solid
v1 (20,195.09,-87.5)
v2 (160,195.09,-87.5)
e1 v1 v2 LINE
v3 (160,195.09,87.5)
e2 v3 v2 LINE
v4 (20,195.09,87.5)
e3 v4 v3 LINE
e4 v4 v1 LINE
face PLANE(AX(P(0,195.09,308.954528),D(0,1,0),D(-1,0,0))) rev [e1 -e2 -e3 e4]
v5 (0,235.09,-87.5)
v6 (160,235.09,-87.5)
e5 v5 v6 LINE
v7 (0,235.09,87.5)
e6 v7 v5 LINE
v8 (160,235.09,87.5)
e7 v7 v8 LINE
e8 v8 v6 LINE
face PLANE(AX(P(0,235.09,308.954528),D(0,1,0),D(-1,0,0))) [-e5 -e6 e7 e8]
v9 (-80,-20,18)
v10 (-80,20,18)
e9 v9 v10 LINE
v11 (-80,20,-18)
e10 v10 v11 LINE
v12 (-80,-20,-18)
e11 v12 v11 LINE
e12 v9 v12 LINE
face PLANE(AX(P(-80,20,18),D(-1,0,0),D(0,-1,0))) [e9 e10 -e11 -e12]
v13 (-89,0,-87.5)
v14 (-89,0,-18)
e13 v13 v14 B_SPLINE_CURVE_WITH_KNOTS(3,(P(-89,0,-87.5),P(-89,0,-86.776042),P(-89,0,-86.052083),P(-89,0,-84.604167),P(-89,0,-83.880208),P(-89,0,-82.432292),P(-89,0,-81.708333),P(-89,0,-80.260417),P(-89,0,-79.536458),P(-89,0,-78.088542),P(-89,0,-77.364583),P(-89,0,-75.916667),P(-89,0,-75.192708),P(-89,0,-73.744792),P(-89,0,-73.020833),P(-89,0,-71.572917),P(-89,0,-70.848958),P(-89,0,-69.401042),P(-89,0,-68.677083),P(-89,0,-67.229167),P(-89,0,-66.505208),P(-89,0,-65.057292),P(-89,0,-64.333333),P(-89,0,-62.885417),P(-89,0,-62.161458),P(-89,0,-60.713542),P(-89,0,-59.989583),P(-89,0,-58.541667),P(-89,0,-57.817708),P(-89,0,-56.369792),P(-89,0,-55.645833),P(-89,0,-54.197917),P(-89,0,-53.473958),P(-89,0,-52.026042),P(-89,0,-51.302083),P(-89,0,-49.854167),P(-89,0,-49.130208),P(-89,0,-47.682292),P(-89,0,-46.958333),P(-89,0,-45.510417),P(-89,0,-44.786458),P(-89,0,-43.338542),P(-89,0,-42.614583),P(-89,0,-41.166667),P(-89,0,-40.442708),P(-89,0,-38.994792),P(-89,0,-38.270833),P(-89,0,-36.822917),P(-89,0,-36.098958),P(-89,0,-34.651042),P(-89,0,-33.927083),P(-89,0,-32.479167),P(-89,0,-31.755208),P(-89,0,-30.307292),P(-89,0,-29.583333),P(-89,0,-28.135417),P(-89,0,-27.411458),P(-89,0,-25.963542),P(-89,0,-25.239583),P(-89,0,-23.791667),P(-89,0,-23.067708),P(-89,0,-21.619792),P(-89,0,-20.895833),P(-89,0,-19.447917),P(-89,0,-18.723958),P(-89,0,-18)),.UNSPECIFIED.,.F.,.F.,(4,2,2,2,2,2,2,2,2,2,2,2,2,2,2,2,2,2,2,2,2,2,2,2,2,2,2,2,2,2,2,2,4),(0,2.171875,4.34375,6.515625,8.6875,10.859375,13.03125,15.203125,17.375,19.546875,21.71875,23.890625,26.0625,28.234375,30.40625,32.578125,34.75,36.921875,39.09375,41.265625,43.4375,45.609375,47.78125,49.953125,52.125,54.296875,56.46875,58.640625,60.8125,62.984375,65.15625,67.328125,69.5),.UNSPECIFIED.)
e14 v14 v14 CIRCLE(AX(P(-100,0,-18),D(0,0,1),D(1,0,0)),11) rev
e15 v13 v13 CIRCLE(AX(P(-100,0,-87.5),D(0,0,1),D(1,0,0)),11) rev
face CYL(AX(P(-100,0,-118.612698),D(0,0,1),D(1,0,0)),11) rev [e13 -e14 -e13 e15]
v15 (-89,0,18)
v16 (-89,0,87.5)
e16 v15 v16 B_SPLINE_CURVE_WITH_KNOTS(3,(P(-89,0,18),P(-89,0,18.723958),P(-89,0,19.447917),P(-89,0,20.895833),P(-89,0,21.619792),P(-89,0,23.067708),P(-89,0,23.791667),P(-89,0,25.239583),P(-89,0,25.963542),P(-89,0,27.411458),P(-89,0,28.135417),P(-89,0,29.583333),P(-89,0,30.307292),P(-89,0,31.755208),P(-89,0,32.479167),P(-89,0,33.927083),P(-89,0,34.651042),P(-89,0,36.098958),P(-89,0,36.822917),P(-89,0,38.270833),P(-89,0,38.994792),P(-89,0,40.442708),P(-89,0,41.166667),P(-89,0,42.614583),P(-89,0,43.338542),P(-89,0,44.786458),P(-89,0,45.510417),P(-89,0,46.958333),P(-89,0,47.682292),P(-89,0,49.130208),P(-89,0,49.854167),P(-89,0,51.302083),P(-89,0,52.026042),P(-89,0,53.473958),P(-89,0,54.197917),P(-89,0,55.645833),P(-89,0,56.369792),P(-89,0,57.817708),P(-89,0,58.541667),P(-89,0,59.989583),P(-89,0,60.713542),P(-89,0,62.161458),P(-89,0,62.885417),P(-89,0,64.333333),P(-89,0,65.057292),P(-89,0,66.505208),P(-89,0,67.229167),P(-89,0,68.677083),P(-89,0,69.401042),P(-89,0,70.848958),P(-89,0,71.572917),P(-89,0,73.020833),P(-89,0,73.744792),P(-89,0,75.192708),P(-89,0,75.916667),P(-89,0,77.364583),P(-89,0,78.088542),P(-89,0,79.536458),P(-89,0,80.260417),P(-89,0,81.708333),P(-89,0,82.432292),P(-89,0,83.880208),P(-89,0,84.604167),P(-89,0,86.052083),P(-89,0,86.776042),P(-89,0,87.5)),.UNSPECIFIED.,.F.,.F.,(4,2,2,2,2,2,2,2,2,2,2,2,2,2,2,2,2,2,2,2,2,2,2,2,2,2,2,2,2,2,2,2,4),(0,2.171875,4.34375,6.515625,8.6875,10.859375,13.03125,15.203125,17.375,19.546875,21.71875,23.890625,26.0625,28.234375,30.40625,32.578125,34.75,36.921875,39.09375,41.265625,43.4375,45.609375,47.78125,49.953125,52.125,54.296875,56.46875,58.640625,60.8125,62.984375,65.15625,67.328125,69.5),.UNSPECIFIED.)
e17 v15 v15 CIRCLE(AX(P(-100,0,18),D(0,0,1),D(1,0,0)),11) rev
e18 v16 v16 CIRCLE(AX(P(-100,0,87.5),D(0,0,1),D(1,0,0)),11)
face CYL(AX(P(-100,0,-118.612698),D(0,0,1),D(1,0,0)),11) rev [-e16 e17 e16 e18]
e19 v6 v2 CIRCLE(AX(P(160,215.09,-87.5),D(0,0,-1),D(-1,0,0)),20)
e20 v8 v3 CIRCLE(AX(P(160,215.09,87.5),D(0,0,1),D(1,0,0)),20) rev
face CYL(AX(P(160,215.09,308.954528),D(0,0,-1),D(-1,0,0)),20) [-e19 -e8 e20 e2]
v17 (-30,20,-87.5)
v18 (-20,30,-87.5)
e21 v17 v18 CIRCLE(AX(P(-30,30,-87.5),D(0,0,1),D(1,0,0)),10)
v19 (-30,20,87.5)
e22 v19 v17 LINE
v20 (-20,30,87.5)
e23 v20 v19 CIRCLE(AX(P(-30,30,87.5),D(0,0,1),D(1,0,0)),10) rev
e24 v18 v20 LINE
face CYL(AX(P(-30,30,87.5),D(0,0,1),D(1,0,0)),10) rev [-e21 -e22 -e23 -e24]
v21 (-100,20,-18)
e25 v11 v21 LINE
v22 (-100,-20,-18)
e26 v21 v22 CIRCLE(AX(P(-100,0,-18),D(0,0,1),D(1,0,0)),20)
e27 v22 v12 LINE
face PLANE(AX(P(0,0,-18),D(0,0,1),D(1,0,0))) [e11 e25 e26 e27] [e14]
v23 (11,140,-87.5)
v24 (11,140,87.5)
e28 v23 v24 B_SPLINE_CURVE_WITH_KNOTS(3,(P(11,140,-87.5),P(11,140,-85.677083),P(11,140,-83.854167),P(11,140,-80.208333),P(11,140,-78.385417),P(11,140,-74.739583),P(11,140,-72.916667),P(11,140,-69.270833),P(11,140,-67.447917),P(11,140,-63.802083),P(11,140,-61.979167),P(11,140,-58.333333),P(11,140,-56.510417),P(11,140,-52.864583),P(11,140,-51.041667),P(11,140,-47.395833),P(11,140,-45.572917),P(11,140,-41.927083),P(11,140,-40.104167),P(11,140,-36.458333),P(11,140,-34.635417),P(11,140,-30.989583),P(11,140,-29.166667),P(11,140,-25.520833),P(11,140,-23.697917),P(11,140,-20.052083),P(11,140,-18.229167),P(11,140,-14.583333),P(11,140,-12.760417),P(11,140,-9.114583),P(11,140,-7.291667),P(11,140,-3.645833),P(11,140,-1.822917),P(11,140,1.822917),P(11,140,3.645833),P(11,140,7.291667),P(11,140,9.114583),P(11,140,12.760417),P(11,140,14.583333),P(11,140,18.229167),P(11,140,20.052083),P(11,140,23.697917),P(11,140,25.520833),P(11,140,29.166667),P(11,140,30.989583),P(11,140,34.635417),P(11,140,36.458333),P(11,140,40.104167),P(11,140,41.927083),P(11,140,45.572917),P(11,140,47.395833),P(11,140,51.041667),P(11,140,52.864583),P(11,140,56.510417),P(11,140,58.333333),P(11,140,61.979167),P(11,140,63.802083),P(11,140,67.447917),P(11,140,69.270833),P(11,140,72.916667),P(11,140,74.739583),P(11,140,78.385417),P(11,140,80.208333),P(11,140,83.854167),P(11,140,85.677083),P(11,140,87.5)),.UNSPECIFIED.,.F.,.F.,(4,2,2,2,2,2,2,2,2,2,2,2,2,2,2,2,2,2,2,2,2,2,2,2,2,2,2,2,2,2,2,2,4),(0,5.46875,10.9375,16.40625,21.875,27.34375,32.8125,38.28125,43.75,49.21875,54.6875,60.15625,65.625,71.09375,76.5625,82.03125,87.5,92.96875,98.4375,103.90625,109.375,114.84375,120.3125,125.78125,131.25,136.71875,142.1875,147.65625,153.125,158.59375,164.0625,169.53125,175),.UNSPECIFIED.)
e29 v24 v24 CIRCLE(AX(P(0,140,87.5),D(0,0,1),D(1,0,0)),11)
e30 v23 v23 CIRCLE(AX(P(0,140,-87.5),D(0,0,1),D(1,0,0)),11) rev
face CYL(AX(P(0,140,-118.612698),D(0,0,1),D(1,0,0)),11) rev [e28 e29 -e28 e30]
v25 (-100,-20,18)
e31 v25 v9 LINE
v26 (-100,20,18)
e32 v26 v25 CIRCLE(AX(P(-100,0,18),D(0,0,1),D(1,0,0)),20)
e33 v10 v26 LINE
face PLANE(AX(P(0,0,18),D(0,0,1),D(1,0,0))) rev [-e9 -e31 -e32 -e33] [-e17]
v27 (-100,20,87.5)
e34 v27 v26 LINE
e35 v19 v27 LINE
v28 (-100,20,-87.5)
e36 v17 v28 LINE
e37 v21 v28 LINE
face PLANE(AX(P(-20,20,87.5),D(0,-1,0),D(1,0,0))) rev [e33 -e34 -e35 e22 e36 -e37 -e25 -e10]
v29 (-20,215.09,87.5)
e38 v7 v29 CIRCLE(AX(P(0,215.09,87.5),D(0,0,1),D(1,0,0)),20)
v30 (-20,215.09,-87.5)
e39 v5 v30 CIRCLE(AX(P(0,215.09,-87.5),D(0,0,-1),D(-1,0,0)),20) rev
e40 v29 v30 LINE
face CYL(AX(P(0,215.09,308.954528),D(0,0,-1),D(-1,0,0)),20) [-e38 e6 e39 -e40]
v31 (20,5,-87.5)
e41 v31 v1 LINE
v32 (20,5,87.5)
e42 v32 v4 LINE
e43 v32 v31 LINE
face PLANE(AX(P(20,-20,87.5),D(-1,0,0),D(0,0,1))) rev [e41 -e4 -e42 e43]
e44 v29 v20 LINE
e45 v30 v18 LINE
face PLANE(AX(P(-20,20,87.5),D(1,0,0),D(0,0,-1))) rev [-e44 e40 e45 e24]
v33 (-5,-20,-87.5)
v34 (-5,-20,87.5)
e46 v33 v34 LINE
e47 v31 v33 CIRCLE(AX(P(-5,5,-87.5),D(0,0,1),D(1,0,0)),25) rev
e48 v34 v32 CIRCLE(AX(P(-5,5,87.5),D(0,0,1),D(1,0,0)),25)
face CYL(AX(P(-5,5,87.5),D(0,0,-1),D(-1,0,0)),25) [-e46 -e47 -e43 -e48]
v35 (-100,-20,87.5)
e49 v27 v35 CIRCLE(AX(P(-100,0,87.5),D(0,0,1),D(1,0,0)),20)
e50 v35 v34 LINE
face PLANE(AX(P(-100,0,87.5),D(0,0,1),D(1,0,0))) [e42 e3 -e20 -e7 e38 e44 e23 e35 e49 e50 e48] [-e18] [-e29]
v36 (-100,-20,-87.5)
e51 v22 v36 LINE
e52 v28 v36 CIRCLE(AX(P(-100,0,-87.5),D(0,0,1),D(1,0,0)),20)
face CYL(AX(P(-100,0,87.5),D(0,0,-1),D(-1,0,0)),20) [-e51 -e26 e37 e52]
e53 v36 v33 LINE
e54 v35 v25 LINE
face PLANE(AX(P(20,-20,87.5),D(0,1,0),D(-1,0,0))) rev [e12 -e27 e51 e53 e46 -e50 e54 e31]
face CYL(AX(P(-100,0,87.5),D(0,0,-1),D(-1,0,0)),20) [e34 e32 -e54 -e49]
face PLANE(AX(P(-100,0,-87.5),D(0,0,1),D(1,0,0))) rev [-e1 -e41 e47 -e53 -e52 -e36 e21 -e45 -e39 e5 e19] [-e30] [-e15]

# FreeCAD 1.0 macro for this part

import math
import FreeCAD as App
import Part
import Sketcher

V = App.Vector
Q = App.Units.Quantity


def edges_at(feature, points):
    """Names of the edges that pass closest to the given points."""
    edges = feature.Shape.Edges
    near = lambda p: min(range(len(edges)), key=lambda i: edges[i].distToShape(Part.Vertex(*p))[0])
    return sorted({f"Edge{near(p) + 1}" for p in points})


def add_polygon(sketch, points):
    """Adds a closed chain of lines whose ends are joined by coincident constraints."""
    first, n = sketch.GeometryCount, len(points)
    for a, b in zip(points, points[1:] + points[:1]):
        sketch.addGeometry(Part.LineSegment(App.Vector(*a, 0), App.Vector(*b, 0)), False)
    for i in range(n):
        sketch.addConstraint(Sketcher.Constraint("Coincident", first + i, 2, first + (i + 1) % n, 1))

doc = App.newDocument("Part")
body = doc.addObject("PartDesign::Body", "Body")

sketch1 = doc.addObject("Sketcher::SketchObject", "Sketch")
body.addObject(sketch1)
sketch1.AttachmentSupport = (doc.XY_Plane, [""])
sketch1.MapMode = "FlatFace"
sketch1.addGeometry(Part.LineSegment(V(-20, 140, 0), V(-20, 20, 0)), False)
sketch1.addGeometry(Part.LineSegment(V(-20, 20, 0), V(-100, 20, 0)), False)
sketch1.addGeometry(Part.ArcOfCircle(Part.Circle(V(-100, 0, 0), V(0, 0, 1), 20), math.radians(90), math.radians(270)), False)
sketch1.addGeometry(Part.LineSegment(V(-100, -20, 0), V(20, -20, 0)), False)
sketch1.addGeometry(Part.LineSegment(V(20, -20, 0), V(20, 140, 0)), False)
sketch1.addGeometry(Part.ArcOfCircle(Part.Circle(V(0, 140, 0), V(0, 0, 1), 20), math.radians(0), math.radians(180)), False)
sketch1.addConstraint(Sketcher.Constraint("Coincident", 0, 2, 1, 1))
sketch1.addConstraint(Sketcher.Constraint("Tangent", 1, 2, 2, 1))
sketch1.addConstraint(Sketcher.Constraint("Tangent", 2, 2, 3, 1))
sketch1.addConstraint(Sketcher.Constraint("Coincident", 3, 2, 4, 1))
sketch1.addConstraint(Sketcher.Constraint("Tangent", 4, 2, 5, 1))
sketch1.addConstraint(Sketcher.Constraint("Tangent", 5, 2, 0, 1))
sketch1.addConstraint(Sketcher.Constraint("Vertical", 0))
sketch1.addConstraint(Sketcher.Constraint("Horizontal", 1))
sketch1.addConstraint(Sketcher.Constraint("Horizontal", 3))
sketch1.addConstraint(Sketcher.Constraint("Vertical", 4))
sketch1.addConstraint(Sketcher.Constraint("Equal", 2, 5))
sketch1.addConstraint(Sketcher.Constraint("Symmetric", 0, 2, 3, 2, -1, 1))
sketch1.addConstraint(Sketcher.Constraint("Equal", 3, 0))
sketch1.addConstraint(Sketcher.Constraint("Radius", 2, Q("20 mm")))
sketch1.addConstraint(Sketcher.Constraint("DistanceX", 1, 2, 1, 1, Q("80 mm")))
pad1 = doc.addObject("PartDesign::Pad", "Pad")
body.addObject(pad1)
pad1.Profile = sketch1
pad1.Length = 175
pad1.Midplane = True

sketch2 = doc.addObject("Sketcher::SketchObject", "Sketch001")
body.addObject(sketch2)
sketch2.AttachmentSupport = (doc.XY_Plane, [""])
sketch2.MapMode = "FlatFace"
sketch2.AttachmentOffset = App.Placement(V(0, 0, 87.5), App.Rotation())
sketch2.addGeometry(Part.Circle(V(-100, 0, 0), V(0, 0, 1), 11), False)
sketch2.addGeometry(Part.Circle(V(0, 140, 0), V(0, 0, 1), 11), False)
sketch2.addConstraint(Sketcher.Constraint("Equal", 0, 1))
sketch2.addConstraint(Sketcher.Constraint("PointOnObject", 0, 3, -1))
sketch2.addConstraint(Sketcher.Constraint("PointOnObject", 1, 3, -2))
sketch2.addConstraint(Sketcher.Constraint("Diameter", 0, Q("22 mm")))
sketch2.addConstraint(Sketcher.Constraint("DistanceX", 0, 3, -1, 1, Q("100 mm")))
sketch2.addConstraint(Sketcher.Constraint("DistanceY", -1, 1, 1, 3, Q("140 mm")))
pocket1 = doc.addObject("PartDesign::Pocket", "Pocket")
body.addObject(pocket1)
pocket1.Profile = sketch2
pocket1.Length = 175
doc.recompute()

fillet = doc.addObject("PartDesign::Fillet", "Fillet")
body.addObject(fillet)
fillet.Base = (pocket1, edges_at(pocket1, [(-20, 20, 0)]))
fillet.Radius = 10
doc.recompute()

fillet2 = doc.addObject("PartDesign::Fillet", "Fillet001")
body.addObject(fillet2)
fillet2.Base = (fillet, edges_at(fillet, [(20, -20, 0)]))
fillet2.Radius = 25

sketch3 = doc.addObject("Sketcher::SketchObject", "Sketch002")
body.addObject(sketch3)
sketch3.AttachmentSupport = (doc.XY_Plane, [""])
sketch3.MapMode = "FlatFace"
add_polygon(sketch3, [(-120, 20), (-120, -20), (-80, -20), (-80, 20)])
sketch3.addConstraint(Sketcher.Constraint("Vertical", 0))
sketch3.addConstraint(Sketcher.Constraint("Horizontal", 1))
sketch3.addConstraint(Sketcher.Constraint("Vertical", 2))
sketch3.addConstraint(Sketcher.Constraint("Horizontal", 3))
sketch3.addConstraint(Sketcher.Constraint("Equal", 3, 0))
sketch3.addConstraint(Sketcher.Constraint("DistanceX", 1, 1, 1, 2, Q("40 mm")))
sketch3.addConstraint(Sketcher.Constraint("DistanceX", 0, 2, -1, 1, Q("120 mm")))
sketch3.addConstraint(Sketcher.Constraint("DistanceY", 0, 2, -1, 1, Q("20 mm")))
pocket2 = doc.addObject("PartDesign::Pocket", "Pocket001")
body.addObject(pocket2)
pocket2.Profile = sketch3
pocket2.Type = "TwoLengths"
pocket2.Length = 18
pocket2.Length2 = 18
pocket2.Reversed = True

sketch4 = doc.addObject("Sketcher::SketchObject", "Sketch003")
body.addObject(sketch4)
sketch4.AttachmentSupport = (doc.XY_Plane, [""])
sketch4.MapMode = "FlatFace"
sketch4.AttachmentOffset = App.Placement(V(0, 0, 87.5), App.Rotation())
sketch4.addGeometry(Part.ArcOfCircle(Part.Circle(V(0, 140, 0), V(0, 0, 1), 20), math.radians(0), math.radians(180)), False)
sketch4.addGeometry(Part.LineSegment(V(-20, 140, 0), V(-20, 215, 0)), False)
sketch4.addGeometry(Part.ArcOfCircle(Part.Circle(V(0, 215, 0), V(0, 0, 1), 20), math.radians(90), math.radians(180)), False)
sketch4.addGeometry(Part.LineSegment(V(0, 235, 0), V(160, 235, 0)), False)
sketch4.addGeometry(Part.ArcOfCircle(Part.Circle(V(160, 215, 0), V(0, 0, 1), 20), math.radians(-90), math.radians(90)), False)
sketch4.addGeometry(Part.LineSegment(V(160, 195, 0), V(20, 195, 0)), False)
sketch4.addGeometry(Part.LineSegment(V(20, 195, 0), V(20, 140, 0)), False)
sketch4.addConstraint(Sketcher.Constraint("Tangent", 0, 2, 1, 1))
sketch4.addConstraint(Sketcher.Constraint("Tangent", 1, 2, 2, 2))
sketch4.addConstraint(Sketcher.Constraint("Tangent", 2, 1, 3, 1))
sketch4.addConstraint(Sketcher.Constraint("Tangent", 3, 2, 4, 2))
sketch4.addConstraint(Sketcher.Constraint("Tangent", 4, 1, 5, 1))
sketch4.addConstraint(Sketcher.Constraint("Coincident", 5, 2, 6, 1))
sketch4.addConstraint(Sketcher.Constraint("Tangent", 6, 2, 0, 1))
sketch4.addConstraint(Sketcher.Constraint("Vertical", 1))
sketch4.addConstraint(Sketcher.Constraint("Horizontal", 3))
sketch4.addConstraint(Sketcher.Constraint("Horizontal", 5))
sketch4.addConstraint(Sketcher.Constraint("Vertical", 6))
sketch4.addConstraint(Sketcher.Constraint("Equal", 0, 2))
sketch4.addConstraint(Sketcher.Constraint("Equal", 2, 4))
sketch4.addConstraint(Sketcher.Constraint("PointOnObject", 0, 3, -2))
sketch4.addConstraint(Sketcher.Constraint("Radius", 0, Q("20 mm")))
sketch4.addConstraint(Sketcher.Constraint("DistanceX", 3, 1, 3, 2, Q("160 mm")))
sketch4.addConstraint(Sketcher.Constraint("DistanceY", -1, 1, 0, 3, Q("140 mm")))
sketch4.addConstraint(Sketcher.Constraint("DistanceY", 1, 1, 1, 2, Q("75.09 mm")))
pad2 = doc.addObject("PartDesign::Pad", "Pad001")
body.addObject(pad2)
pad2.Profile = sketch4
pad2.Length = 175
pad2.Reversed = True

doc.recompute()
